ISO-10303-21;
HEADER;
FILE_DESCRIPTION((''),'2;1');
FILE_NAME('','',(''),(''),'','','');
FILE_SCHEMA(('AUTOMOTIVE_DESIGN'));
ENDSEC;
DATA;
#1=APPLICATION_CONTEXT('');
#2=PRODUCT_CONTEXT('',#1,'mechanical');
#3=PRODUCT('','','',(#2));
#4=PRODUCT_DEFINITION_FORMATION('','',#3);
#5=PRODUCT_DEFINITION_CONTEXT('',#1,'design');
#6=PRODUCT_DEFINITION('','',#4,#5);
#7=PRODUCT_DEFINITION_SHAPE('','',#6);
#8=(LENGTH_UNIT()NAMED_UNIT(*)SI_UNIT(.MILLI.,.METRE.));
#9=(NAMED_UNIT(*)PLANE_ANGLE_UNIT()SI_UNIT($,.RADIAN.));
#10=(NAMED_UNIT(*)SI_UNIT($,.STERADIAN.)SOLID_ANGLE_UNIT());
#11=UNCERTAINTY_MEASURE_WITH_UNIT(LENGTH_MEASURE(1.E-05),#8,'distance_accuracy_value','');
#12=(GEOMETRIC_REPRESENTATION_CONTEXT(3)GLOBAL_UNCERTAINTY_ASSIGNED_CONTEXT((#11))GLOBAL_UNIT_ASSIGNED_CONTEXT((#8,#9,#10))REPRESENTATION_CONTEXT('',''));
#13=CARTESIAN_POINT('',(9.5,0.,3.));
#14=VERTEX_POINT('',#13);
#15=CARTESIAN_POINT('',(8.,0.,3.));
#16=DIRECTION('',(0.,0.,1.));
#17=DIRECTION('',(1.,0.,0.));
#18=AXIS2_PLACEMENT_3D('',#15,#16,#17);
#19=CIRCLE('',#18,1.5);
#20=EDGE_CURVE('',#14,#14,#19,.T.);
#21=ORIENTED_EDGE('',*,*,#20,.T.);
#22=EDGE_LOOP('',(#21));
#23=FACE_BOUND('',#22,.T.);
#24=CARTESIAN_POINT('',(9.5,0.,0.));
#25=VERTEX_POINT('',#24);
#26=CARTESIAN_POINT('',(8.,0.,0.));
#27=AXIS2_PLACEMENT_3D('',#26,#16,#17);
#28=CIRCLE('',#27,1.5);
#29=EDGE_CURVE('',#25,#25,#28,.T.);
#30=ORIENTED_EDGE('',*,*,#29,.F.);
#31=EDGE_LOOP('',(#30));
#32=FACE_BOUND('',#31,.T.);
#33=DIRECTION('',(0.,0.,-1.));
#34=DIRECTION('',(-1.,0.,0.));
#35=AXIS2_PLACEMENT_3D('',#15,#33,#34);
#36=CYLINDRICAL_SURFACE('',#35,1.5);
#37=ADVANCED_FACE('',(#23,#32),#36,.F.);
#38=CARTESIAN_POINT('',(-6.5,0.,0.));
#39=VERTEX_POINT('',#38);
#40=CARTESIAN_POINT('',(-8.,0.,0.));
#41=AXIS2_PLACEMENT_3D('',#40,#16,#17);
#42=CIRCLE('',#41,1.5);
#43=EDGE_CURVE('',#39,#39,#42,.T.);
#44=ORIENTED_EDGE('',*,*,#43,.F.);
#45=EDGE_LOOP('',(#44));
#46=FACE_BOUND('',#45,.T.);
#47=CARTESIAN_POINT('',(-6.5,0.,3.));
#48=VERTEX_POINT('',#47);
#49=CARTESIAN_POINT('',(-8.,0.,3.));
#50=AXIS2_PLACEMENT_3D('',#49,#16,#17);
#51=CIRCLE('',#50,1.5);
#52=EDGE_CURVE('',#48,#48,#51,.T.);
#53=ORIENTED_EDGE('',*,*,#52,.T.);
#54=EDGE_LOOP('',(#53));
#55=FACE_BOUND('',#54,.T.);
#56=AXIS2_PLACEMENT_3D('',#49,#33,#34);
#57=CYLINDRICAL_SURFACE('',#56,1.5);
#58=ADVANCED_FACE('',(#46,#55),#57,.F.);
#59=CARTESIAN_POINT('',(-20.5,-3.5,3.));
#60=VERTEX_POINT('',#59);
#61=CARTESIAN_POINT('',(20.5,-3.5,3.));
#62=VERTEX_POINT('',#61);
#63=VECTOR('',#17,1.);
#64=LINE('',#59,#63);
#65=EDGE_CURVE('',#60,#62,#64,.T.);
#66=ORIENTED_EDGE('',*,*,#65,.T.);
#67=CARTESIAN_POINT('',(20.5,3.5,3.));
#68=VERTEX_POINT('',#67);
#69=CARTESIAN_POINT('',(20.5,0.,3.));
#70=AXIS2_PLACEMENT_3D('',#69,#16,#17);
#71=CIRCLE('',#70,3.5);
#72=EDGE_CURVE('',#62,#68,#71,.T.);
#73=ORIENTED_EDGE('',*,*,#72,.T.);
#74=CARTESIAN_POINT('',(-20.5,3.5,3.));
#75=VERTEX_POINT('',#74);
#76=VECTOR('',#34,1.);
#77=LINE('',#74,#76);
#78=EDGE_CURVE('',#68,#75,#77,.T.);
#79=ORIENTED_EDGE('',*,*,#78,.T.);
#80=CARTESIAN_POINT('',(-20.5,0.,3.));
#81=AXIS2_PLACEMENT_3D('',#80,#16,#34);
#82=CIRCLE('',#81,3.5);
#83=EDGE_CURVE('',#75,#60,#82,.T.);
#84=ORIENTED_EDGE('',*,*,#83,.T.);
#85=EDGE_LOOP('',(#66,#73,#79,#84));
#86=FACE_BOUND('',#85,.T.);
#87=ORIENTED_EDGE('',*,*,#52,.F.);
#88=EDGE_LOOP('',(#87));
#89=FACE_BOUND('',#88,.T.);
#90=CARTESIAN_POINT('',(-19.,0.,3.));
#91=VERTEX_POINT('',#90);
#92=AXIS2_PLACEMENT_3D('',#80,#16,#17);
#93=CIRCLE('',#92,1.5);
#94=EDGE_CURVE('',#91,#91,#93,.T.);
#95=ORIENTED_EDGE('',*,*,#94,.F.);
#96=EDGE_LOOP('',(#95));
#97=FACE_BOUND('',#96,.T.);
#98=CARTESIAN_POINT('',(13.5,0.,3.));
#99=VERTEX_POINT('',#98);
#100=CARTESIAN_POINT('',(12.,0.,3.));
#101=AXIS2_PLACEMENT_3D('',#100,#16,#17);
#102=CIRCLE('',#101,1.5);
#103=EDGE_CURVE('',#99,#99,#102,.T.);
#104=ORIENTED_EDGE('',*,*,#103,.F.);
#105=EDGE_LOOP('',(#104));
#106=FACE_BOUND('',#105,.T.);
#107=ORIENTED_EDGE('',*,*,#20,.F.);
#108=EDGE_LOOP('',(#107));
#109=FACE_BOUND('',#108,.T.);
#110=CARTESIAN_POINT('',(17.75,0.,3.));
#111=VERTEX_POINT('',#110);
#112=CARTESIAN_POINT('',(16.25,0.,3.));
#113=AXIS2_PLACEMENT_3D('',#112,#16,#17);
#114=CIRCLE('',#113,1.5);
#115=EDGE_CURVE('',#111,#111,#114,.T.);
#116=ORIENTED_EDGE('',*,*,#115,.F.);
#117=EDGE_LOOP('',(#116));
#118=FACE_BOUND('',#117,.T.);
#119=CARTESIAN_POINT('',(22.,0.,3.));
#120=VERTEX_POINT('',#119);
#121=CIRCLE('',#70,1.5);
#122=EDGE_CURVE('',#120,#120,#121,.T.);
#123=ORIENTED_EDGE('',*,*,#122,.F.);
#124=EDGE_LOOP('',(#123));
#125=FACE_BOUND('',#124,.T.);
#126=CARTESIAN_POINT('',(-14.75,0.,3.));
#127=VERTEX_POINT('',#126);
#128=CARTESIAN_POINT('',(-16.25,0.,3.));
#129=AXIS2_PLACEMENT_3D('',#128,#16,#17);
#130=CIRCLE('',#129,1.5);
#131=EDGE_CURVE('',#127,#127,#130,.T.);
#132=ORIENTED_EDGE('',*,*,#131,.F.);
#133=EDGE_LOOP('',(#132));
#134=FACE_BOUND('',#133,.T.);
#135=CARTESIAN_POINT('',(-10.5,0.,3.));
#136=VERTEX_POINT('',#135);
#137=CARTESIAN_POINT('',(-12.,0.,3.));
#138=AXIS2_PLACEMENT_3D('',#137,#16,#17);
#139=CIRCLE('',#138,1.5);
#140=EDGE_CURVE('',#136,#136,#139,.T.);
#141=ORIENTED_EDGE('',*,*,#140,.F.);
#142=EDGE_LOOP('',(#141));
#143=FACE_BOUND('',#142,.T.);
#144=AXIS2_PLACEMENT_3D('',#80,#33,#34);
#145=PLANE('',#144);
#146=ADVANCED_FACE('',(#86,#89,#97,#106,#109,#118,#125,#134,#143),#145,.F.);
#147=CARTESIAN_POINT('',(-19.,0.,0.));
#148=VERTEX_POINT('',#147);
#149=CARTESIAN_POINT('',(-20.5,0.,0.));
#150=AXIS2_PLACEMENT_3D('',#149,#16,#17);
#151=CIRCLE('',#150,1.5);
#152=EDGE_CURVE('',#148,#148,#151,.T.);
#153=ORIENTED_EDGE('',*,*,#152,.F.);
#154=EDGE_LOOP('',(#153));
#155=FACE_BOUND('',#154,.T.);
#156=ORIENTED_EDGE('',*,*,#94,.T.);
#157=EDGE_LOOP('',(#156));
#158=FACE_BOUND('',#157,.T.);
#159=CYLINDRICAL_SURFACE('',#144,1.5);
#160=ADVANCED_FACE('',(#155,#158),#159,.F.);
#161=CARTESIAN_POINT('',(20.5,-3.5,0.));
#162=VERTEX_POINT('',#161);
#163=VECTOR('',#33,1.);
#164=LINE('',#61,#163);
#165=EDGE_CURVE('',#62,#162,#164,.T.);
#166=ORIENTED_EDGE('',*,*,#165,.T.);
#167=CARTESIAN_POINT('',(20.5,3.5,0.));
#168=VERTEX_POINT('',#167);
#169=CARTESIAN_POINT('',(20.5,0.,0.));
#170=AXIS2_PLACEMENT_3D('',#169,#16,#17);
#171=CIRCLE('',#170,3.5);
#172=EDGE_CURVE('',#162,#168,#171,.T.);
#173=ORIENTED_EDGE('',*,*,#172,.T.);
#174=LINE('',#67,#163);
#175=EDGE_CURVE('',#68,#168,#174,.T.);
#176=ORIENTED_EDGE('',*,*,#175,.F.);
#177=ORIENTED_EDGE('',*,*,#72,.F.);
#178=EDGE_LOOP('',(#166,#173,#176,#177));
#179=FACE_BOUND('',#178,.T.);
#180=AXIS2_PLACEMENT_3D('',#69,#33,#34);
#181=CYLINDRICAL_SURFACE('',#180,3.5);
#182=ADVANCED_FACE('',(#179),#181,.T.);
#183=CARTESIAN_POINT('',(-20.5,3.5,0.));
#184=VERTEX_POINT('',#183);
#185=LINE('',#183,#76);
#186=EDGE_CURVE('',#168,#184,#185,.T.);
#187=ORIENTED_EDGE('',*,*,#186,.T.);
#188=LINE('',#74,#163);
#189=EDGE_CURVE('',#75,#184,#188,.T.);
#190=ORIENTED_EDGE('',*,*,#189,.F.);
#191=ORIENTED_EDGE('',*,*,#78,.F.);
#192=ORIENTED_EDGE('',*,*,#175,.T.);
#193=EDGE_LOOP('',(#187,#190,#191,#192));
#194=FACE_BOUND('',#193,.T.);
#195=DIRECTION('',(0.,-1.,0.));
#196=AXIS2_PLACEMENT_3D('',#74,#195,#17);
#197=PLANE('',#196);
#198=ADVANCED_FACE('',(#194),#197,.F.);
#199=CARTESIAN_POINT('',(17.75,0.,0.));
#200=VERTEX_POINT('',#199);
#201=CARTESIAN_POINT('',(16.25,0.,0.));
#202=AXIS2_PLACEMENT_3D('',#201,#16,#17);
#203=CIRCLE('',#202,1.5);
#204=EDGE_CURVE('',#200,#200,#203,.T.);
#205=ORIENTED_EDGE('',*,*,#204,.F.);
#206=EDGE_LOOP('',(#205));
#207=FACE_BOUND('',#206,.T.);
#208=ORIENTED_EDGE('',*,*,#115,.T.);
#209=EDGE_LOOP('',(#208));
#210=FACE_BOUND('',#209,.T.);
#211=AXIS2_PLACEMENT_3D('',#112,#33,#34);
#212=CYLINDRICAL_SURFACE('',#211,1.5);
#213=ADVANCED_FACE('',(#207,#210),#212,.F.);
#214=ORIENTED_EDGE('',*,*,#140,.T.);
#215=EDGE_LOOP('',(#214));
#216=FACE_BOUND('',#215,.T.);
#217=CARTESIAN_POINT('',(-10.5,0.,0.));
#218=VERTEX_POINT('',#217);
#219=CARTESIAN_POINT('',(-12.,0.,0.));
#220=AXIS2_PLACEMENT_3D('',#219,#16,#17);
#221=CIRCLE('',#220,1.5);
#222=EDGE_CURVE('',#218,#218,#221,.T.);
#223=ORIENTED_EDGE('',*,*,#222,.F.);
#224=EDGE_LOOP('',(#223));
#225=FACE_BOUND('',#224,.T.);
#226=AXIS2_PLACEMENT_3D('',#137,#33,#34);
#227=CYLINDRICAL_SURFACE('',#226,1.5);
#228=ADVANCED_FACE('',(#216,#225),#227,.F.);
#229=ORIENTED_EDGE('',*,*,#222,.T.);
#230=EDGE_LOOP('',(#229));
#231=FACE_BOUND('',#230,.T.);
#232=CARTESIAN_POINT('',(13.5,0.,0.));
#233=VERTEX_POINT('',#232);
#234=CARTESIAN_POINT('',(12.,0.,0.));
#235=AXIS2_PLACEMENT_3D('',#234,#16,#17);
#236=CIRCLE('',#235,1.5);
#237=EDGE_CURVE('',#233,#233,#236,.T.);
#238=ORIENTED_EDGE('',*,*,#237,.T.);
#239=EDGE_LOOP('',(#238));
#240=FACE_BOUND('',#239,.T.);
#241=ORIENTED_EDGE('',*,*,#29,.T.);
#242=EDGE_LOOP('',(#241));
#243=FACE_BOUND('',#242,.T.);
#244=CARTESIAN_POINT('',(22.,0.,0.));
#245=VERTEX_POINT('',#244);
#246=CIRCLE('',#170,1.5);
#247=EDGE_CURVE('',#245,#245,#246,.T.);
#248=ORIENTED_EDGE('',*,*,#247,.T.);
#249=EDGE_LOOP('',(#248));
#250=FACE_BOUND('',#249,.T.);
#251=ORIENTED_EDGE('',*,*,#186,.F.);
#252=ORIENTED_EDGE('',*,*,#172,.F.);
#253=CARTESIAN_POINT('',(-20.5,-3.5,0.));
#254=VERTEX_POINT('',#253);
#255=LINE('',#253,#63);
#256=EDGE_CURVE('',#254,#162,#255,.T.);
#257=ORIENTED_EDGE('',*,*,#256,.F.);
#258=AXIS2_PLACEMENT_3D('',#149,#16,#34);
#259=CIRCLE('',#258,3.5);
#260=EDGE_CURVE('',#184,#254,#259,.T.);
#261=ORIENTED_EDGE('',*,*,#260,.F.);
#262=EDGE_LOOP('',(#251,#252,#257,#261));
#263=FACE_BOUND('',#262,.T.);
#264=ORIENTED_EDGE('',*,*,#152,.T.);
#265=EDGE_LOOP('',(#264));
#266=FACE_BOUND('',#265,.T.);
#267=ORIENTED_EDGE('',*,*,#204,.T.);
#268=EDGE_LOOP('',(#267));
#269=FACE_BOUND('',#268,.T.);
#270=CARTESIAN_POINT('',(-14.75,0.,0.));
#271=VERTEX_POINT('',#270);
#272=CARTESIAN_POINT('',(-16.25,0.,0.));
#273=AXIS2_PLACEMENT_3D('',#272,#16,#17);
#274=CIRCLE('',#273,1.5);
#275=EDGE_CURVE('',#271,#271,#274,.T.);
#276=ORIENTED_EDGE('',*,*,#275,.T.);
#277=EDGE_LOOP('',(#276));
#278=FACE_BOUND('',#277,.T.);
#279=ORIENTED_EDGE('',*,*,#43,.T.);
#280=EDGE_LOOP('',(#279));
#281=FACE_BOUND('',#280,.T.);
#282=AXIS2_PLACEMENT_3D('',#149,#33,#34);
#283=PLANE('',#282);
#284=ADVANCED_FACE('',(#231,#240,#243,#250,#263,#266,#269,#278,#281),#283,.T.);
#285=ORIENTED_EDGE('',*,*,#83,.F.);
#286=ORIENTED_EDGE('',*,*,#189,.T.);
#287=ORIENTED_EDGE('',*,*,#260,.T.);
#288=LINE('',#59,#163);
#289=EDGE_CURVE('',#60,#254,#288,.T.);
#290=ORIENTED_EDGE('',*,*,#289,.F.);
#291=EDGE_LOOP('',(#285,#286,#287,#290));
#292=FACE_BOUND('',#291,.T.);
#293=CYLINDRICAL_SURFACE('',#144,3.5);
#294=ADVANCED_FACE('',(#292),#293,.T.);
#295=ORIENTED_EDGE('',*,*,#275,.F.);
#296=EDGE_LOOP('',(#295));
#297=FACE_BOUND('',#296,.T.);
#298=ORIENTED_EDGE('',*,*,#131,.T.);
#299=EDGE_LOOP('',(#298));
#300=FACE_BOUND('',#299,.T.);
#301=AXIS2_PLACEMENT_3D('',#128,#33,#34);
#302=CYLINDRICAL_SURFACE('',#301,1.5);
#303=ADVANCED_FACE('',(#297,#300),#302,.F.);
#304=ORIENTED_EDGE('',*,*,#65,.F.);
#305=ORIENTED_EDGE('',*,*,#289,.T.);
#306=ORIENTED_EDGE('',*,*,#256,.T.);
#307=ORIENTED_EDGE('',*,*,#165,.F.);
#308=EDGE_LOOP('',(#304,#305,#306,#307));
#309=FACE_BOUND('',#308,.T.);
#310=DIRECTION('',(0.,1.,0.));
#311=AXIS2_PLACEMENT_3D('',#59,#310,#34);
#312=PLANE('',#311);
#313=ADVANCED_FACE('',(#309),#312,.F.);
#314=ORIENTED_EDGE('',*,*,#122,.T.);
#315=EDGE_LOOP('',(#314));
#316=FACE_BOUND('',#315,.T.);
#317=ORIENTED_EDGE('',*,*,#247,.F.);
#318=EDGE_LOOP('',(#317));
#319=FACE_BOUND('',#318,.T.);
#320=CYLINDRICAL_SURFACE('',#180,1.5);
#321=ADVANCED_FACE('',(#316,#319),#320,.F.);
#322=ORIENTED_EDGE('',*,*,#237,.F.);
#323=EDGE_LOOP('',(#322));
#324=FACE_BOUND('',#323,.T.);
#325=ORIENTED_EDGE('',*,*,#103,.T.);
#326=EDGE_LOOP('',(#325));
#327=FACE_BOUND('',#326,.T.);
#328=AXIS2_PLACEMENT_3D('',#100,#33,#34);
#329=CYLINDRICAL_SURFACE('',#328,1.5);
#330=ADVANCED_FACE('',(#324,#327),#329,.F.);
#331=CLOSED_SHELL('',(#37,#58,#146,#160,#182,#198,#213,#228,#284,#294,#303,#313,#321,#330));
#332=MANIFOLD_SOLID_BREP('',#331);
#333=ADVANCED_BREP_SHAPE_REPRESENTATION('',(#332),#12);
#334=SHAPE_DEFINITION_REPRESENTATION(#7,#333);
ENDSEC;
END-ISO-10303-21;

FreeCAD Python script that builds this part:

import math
import FreeCAD as App
import Part
import Sketcher
Q = App.Units.Quantity

doc = App.newDocument("Part")
body = doc.addObject("PartDesign::Body", "Body")

sketch1 = doc.addObject("Sketcher::SketchObject", "Sketch")
body.addObject(sketch1)
sketch1.AttachmentSupport = (doc.XY_Plane, [""])
sketch1.MapMode = "FlatFace"
sketch1.addGeometry(Part.LineSegment(App.Vector(20.5, 3.5, 0), App.Vector(-20.5, 3.5, 0)), False)
sketch1.addGeometry(Part.ArcOfCircle(Part.Circle(App.Vector(-20.5, 0, 0), App.Vector(0, 0, 1), 3.5), math.radians(90), math.radians(270)), False)
sketch1.addGeometry(Part.LineSegment(App.Vector(-20.5, -3.5, 0), App.Vector(20.5, -3.5, 0)), False)
sketch1.addGeometry(Part.ArcOfCircle(Part.Circle(App.Vector(20.5, 0, 0), App.Vector(0, 0, 1), 3.5), math.radians(-90), math.radians(90)), False)
sketch1.addGeometry(Part.Circle(App.Vector(20.5, 0, 0), App.Vector(0, 0, 1), 1.5), False)
sketch1.addGeometry(Part.Circle(App.Vector(16.2, 0, 0), App.Vector(0, 0, 1), 1.5), False)
sketch1.addGeometry(Part.Circle(App.Vector(12, 0, 0), App.Vector(0, 0, 1), 1.5), False)
sketch1.addGeometry(Part.Circle(App.Vector(8, 0, 0), App.Vector(0, 0, 1), 1.5), False)
sketch1.addGeometry(Part.Circle(App.Vector(-8, 0, 0), App.Vector(0, 0, 1), 1.5), False)
sketch1.addGeometry(Part.Circle(App.Vector(-12, 0, 0), App.Vector(0, 0, 1), 1.5), False)
sketch1.addGeometry(Part.Circle(App.Vector(-16.2, 0, 0), App.Vector(0, 0, 1), 1.5), False)
sketch1.addGeometry(Part.Circle(App.Vector(-20.5, 0, 0), App.Vector(0, 0, 1), 1.5), False)
sketch1.addConstraint(Sketcher.Constraint("Tangent", 0, 2, 1, 1))
sketch1.addConstraint(Sketcher.Constraint("Tangent", 1, 2, 2, 1))
sketch1.addConstraint(Sketcher.Constraint("Tangent", 2, 2, 3, 1))
sketch1.addConstraint(Sketcher.Constraint("Tangent", 3, 2, 0, 1))
sketch1.addConstraint(Sketcher.Constraint("Horizontal", 0))
sketch1.addConstraint(Sketcher.Constraint("Horizontal", 2))
sketch1.addConstraint(Sketcher.Constraint("Coincident", 4, 3, 3, 3))
sketch1.addConstraint(Sketcher.Constraint("Coincident", 11, 3, 1, 3))
sketch1.addConstraint(Sketcher.Constraint("Equal", 4, 5))
sketch1.addConstraint(Sketcher.Constraint("Equal", 5, 6))
sketch1.addConstraint(Sketcher.Constraint("Equal", 6, 7))
sketch1.addConstraint(Sketcher.Constraint("Equal", 7, 8))
sketch1.addConstraint(Sketcher.Constraint("Equal", 8, 9))
sketch1.addConstraint(Sketcher.Constraint("Equal", 9, 10))
sketch1.addConstraint(Sketcher.Constraint("Equal", 10, 11))
sketch1.addConstraint(Sketcher.Constraint("Symmetric", 1, 3, 3, 3, -1, 1))
sketch1.addConstraint(Sketcher.Constraint("Symmetric", 7, 3, 8, 3, -1, 1))
sketch1.addConstraint(Sketcher.Constraint("Symmetric", 6, 3, 9, 3, -1, 1))
sketch1.addConstraint(Sketcher.Constraint("Symmetric", 5, 3, 10, 3, -1, 1))
sketch1.addConstraint(Sketcher.Constraint("PointOnObject", 5, 3, -1))
sketch1.addConstraint(Sketcher.Constraint("PointOnObject", 6, 3, -1))
sketch1.addConstraint(Sketcher.Constraint("PointOnObject", 7, 3, -1))
sketch1.addConstraint(Sketcher.Constraint("Diameter", 4, Q("3 mm")))
sketch1.addConstraint(Sketcher.Constraint("Radius", 1, Q("3.5 mm")))
sketch1.addConstraint(Sketcher.Constraint("DistanceX", 0, 2, 0, 1, Q("41 mm")))
sketch1.addConstraint(Sketcher.Constraint("DistanceX", -1, 1, 6, 3, Q("12 mm")))
sketch1.addConstraint(Sketcher.Constraint("DistanceX", -1, 1, 7, 3, Q("8 mm")))
sketch1.addConstraint(Sketcher.Constraint("DistanceX", -1, 1, 5, 3, Q("16.25 mm")))
pad1 = doc.addObject("PartDesign::Pad", "Pad")
body.addObject(pad1)
pad1.Profile = sketch1
pad1.Length = 3

doc.recompute()
